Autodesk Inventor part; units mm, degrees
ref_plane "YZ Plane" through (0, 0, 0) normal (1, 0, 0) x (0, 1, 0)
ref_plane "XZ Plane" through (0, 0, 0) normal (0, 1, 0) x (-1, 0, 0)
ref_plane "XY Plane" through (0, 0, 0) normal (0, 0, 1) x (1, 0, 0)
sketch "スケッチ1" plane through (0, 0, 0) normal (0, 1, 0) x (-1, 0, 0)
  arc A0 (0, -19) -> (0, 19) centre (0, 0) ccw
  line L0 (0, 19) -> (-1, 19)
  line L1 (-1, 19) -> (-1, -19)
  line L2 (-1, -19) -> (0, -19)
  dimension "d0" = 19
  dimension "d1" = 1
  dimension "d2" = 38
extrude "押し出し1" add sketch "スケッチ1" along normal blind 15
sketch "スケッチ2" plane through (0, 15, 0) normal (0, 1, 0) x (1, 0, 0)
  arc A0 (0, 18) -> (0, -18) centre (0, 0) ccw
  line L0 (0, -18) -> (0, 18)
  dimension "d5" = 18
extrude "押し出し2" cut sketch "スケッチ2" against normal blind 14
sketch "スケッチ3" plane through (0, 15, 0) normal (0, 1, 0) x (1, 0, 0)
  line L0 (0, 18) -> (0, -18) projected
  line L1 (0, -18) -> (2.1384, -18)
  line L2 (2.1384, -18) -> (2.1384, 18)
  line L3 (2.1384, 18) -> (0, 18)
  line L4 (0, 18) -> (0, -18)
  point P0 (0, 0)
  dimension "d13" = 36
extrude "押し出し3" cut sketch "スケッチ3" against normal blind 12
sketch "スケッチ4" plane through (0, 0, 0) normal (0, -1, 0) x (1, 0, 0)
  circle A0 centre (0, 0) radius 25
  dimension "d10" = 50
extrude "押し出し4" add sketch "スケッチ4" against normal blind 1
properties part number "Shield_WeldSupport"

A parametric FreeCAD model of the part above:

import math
import FreeCAD as App
import Part
import Sketcher
from FreeCAD import Vector

doc = App.newDocument("Part")
body = doc.addObject("PartDesign::Body", "Body")

sketch1 = body.newObject("Sketcher::SketchObject", "Sketch")
sketch1.AttachmentSupport = (doc.getObject("XZ_Plane"), [""])
sketch1.MapMode = "FlatFace"
sketch1.addGeometry(Part.LineSegment(Vector(1, -19, 0), Vector(0, -19, 0)), False)
sketch1.addGeometry(Part.ArcOfCircle(Part.Circle(Vector(0, 0, 0), Vector(0, 0, 1), 19), math.radians(90), math.radians(270)), False)
sketch1.addGeometry(Part.LineSegment(Vector(0, 19, 0), Vector(1, 19, 0)), False)
sketch1.addGeometry(Part.LineSegment(Vector(1, 19, 0), Vector(1, -19, 0)), False)
sketch1.addConstraint(Sketcher.Constraint("Tangent", 0, 2, 1, 2))
sketch1.addConstraint(Sketcher.Constraint("Tangent", 1, 1, 2, 1))
sketch1.addConstraint(Sketcher.Constraint("Coincident", 2, 2, 3, 1))
sketch1.addConstraint(Sketcher.Constraint("Coincident", 3, 2, 0, 1))
sketch1.addConstraint(Sketcher.Constraint("Horizontal", 0))
sketch1.addConstraint(Sketcher.Constraint("Horizontal", 2))
sketch1.addConstraint(Sketcher.Constraint("Vertical", 3))
sketch1.addConstraint(Sketcher.Constraint("Coincident", 1, 3, -1, 1))
sketch1.addConstraint(Sketcher.Constraint("Radius", 1, 19.0))
sketch1.addConstraint(Sketcher.Constraint("DistanceX", 0, 2, 0, 1, 1.0))
pad1 = body.newObject("PartDesign::Pad", "Pad")
pad1.Profile = sketch1
pad1.Length = 15
pad1.Reversed = True

sketch2 = body.newObject("Sketcher::SketchObject", "Sketch001")
sketch2.AttachmentSupport = (doc.getObject("XZ_Plane"), [""])
sketch2.MapMode = "FlatFace"
sketch2.AttachmentOffset = App.Placement(Vector(0, 0, -15), App.Rotation())
sketch2.addGeometry(Part.LineSegment(Vector(0, 18, 0), Vector(0, -18, 0)), False)
sketch2.addGeometry(Part.ArcOfCircle(Part.Circle(Vector(0, 0, 0), Vector(0, 0, 1), 18), math.radians(90), math.radians(270)), False)
sketch2.addConstraint(Sketcher.Constraint("Coincident", 0, 1, 1, 1))
sketch2.addConstraint(Sketcher.Constraint("Coincident", 1, 2, 0, 2))
sketch2.addConstraint(Sketcher.Constraint("Vertical", 0))
sketch2.addConstraint(Sketcher.Constraint("Coincident", 1, 3, -1, 1))
sketch2.addConstraint(Sketcher.Constraint("PointOnObject", 0, 1, -2))
sketch2.addConstraint(Sketcher.Constraint("Radius", 1, 18.0))
pocket1 = body.newObject("PartDesign::Pocket", "Pocket")
pocket1.Profile = sketch2
pocket1.Length = 14
pocket1.Reversed = True

sketch3 = body.newObject("Sketcher::SketchObject", "Sketch002")
sketch3.AttachmentSupport = (doc.getObject("XZ_Plane"), [""])
sketch3.MapMode = "FlatFace"
sketch3.AttachmentOffset = App.Placement(Vector(0, 0, -15), App.Rotation())
sketch3.addGeometry(Part.LineSegment(Vector(2.1, -18, 0), Vector(0, -18, 0)), False)
sketch3.addGeometry(Part.LineSegment(Vector(0, -18, 0), Vector(0, 18, 0)), False)
sketch3.addGeometry(Part.LineSegment(Vector(0, 18, 0), Vector(2.1, 18, 0)), False)
sketch3.addGeometry(Part.LineSegment(Vector(2.1, 18, 0), Vector(2.1, -18, 0)), False)
sketch3.addConstraint(Sketcher.Constraint("Coincident", 0, 2, 1, 1))
sketch3.addConstraint(Sketcher.Constraint("Coincident", 1, 2, 2, 1))
sketch3.addConstraint(Sketcher.Constraint("Coincident", 2, 2, 3, 1))
sketch3.addConstraint(Sketcher.Constraint("Coincident", 3, 2, 0, 1))
sketch3.addConstraint(Sketcher.Constraint("Horizontal", 0))
sketch3.addConstraint(Sketcher.Constraint("Vertical", 1))
sketch3.addConstraint(Sketcher.Constraint("Horizontal", 2))
sketch3.addConstraint(Sketcher.Constraint("Vertical", 3))
sketch3.addConstraint(Sketcher.Constraint("Symmetric", 0, 2, 1, 2, -1, 1))
sketch3.addConstraint(Sketcher.Constraint("DistanceY", 1, 1, 1, 2, 36.0))
sketch3.addConstraint(Sketcher.Constraint("DistanceX", 0, 2, 0, 1, 2.1384))
pocket2 = body.newObject("PartDesign::Pocket", "Pocket001")
pocket2.Profile = sketch3
pocket2.Length = 12
pocket2.Reversed = True

sketch4 = body.newObject("Sketcher::SketchObject", "Sketch003")
sketch4.AttachmentSupport = (doc.getObject("XZ_Plane"), [""])
sketch4.MapMode = "FlatFace"
sketch4.addGeometry(Part.Circle(Vector(0, 0, 0), Vector(0, 0, 1), 25), False)
sketch4.addConstraint(Sketcher.Constraint("Coincident", 0, 3, -1, 1))
sketch4.addConstraint(Sketcher.Constraint("Diameter", 0, 50.0))
pad2 = body.newObject("PartDesign::Pad", "Pad001")
pad2.Profile = sketch4
pad2.Length = 1
pad2.Reversed = True

doc.recompute()
